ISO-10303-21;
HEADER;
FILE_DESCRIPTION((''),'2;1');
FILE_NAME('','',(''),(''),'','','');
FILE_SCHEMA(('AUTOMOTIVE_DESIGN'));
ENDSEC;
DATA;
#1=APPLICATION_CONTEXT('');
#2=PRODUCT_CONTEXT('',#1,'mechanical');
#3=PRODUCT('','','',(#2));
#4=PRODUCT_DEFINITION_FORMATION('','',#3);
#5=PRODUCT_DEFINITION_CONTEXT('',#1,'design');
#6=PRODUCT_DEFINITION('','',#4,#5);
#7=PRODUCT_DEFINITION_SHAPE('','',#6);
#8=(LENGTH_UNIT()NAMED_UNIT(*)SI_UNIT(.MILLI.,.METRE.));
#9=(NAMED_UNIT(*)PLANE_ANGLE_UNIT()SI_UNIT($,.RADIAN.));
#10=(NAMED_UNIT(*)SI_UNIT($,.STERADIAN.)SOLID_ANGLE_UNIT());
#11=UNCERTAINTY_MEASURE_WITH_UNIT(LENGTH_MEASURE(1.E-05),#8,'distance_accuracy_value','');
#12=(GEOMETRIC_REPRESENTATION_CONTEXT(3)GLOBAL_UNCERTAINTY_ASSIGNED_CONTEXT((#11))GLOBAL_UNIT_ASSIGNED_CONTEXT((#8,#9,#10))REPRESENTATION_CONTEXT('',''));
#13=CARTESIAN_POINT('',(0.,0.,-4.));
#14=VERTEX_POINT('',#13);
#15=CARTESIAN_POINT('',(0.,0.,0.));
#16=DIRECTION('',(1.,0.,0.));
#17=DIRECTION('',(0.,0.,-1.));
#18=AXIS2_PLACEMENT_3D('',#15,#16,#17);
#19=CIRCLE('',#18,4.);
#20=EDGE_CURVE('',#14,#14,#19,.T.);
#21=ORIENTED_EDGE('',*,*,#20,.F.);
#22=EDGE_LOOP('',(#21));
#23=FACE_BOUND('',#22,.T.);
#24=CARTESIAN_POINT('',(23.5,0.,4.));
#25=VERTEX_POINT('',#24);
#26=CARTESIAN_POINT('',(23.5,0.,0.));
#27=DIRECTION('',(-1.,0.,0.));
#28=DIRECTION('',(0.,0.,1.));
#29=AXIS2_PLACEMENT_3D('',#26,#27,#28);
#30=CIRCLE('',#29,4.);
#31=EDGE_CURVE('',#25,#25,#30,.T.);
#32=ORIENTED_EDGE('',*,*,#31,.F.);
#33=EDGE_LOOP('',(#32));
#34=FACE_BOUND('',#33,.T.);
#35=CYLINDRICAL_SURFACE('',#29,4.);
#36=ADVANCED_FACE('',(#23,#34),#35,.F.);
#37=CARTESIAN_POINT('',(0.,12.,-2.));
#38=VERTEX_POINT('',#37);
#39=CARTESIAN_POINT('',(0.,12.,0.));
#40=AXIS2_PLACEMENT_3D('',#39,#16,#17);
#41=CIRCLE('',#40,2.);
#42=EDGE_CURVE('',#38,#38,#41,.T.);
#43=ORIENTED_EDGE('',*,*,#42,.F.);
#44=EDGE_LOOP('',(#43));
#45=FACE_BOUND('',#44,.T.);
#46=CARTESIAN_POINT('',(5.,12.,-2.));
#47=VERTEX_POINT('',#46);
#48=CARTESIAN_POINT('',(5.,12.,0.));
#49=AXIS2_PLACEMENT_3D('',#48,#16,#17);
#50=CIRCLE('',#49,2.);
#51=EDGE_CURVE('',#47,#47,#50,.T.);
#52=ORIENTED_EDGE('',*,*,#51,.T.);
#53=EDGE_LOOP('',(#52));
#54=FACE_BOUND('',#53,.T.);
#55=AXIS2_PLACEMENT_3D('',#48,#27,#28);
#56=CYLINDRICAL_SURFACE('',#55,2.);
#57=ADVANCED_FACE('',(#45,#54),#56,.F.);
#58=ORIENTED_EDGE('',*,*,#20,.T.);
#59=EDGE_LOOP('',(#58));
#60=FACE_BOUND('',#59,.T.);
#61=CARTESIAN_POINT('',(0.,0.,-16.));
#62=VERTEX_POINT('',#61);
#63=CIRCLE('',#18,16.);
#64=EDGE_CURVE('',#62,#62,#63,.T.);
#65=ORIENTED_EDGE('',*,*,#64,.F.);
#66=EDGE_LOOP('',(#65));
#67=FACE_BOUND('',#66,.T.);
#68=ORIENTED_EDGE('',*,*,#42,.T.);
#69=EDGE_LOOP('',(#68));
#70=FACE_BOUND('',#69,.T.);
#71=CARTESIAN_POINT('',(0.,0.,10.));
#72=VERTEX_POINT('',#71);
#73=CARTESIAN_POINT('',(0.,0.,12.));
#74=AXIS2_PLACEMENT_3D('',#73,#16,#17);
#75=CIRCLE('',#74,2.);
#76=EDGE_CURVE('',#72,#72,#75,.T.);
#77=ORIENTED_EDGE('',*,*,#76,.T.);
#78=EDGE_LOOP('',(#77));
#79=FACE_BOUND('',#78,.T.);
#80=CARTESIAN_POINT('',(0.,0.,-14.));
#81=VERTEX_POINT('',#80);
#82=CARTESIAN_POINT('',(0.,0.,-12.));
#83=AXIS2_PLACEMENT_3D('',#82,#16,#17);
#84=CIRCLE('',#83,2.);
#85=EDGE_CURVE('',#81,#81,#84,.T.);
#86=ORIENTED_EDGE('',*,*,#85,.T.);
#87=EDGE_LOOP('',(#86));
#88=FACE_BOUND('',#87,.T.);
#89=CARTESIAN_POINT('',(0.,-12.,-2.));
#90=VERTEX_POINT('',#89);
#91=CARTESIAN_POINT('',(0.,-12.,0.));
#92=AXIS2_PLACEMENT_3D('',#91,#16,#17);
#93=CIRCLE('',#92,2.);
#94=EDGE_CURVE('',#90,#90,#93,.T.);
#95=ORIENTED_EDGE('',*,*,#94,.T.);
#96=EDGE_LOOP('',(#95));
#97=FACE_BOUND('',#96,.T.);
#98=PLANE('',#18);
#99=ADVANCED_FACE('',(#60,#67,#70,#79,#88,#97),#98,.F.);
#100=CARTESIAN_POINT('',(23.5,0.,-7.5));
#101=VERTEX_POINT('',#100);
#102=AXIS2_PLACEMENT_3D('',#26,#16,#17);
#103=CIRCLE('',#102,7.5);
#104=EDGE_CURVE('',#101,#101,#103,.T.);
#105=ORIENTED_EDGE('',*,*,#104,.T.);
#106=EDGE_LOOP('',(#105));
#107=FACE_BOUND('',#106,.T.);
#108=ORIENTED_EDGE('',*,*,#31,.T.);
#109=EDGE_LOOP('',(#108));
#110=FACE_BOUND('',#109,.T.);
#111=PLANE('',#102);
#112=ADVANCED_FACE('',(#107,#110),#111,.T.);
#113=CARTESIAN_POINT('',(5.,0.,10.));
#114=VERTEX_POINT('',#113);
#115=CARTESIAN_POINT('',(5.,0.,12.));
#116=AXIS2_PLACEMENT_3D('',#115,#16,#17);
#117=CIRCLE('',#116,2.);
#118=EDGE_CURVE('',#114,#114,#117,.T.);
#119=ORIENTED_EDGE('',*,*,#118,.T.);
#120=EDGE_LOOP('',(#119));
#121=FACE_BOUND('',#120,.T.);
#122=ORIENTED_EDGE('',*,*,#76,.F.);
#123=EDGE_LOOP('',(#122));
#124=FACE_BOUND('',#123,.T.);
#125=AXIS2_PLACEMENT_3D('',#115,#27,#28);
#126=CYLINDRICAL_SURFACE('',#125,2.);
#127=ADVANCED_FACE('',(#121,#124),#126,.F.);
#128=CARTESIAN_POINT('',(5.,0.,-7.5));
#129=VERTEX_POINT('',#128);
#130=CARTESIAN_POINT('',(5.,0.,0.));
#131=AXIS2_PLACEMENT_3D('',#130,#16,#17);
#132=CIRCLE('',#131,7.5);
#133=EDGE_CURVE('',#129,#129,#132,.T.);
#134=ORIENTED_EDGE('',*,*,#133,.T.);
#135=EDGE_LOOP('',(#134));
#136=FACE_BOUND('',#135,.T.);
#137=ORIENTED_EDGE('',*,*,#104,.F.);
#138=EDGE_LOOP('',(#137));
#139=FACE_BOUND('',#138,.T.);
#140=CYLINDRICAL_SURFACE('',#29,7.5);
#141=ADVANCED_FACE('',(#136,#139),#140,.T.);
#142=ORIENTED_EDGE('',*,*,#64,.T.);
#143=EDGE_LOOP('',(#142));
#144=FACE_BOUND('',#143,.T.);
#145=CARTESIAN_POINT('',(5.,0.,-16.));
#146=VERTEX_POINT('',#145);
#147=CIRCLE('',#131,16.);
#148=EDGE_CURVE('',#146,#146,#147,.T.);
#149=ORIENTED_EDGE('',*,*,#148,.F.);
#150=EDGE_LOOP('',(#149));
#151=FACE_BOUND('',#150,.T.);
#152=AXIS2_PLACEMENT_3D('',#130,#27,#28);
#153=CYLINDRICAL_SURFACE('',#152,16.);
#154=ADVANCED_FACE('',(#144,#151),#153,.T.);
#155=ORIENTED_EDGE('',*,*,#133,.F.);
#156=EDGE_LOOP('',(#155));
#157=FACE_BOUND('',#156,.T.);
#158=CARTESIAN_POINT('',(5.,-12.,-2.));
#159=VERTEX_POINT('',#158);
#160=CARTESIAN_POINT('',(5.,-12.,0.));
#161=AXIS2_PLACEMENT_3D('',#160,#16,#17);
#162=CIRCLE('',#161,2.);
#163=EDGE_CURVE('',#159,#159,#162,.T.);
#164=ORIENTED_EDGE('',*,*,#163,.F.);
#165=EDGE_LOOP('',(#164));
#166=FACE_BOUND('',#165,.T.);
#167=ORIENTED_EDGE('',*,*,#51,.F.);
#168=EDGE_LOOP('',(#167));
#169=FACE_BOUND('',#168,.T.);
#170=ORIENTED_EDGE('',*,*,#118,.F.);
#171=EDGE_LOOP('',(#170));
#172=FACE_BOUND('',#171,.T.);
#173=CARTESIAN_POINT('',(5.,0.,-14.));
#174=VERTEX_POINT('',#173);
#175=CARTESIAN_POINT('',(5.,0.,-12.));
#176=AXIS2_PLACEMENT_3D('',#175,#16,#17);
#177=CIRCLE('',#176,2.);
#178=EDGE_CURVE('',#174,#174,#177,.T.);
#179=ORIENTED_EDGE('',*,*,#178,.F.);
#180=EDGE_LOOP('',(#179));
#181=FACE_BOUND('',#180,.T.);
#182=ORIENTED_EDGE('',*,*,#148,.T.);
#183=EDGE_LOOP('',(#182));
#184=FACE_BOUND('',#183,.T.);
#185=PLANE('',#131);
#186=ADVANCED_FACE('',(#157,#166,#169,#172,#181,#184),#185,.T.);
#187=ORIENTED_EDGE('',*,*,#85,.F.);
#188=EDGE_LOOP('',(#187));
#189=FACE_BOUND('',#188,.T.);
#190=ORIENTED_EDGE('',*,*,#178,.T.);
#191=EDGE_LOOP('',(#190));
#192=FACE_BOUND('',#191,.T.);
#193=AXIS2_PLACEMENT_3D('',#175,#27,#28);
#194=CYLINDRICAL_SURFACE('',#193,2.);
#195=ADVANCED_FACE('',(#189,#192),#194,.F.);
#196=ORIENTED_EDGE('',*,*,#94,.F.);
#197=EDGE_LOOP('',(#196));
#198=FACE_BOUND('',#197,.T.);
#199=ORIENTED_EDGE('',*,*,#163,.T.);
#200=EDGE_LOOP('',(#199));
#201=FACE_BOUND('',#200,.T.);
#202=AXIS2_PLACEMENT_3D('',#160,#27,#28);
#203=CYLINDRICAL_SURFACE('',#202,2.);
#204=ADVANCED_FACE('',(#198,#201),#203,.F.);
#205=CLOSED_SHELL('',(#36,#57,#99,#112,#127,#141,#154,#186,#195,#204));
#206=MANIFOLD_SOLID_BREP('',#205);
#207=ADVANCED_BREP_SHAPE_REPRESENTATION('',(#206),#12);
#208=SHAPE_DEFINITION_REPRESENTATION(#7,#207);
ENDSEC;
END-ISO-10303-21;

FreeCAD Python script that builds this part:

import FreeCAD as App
import Part
import Sketcher

V = App.Vector
Q = App.Units.Quantity

doc = App.newDocument("Part")
body = doc.addObject("PartDesign::Body", "Body")

# Sketch on YZ plane
sketch1 = body.newObject("Sketcher::SketchObject", "Sketch")
sketch1.AttachmentSupport = (doc.getObject("YZ_Plane"), [""])
sketch1.MapMode = "FlatFace"
sketch1.addGeometry(Part.Circle(V(0, 0, 0), V(0, 0, 1), 16), False)
sketch1.addGeometry(Part.Circle(V(-12, 0, 0), V(0, 0, 1), 2), False)
sketch1.addGeometry(Part.Circle(V(0, 12, 0), V(0, 0, 1), 2), False)
sketch1.addGeometry(Part.Circle(V(0, -12, 0), V(0, 0, 1), 2), False)
sketch1.addGeometry(Part.Circle(V(12, 0, 0), V(0, 0, 1), 2), False)
sketch1.addConstraint(Sketcher.Constraint("Coincident", 0, 3, -1, 1))
sketch1.addConstraint(Sketcher.Constraint("Equal", 1, 2))
sketch1.addConstraint(Sketcher.Constraint("Equal", 2, 3))
sketch1.addConstraint(Sketcher.Constraint("Equal", 3, 4))
sketch1.addConstraint(Sketcher.Constraint("Symmetric", 2, 3, 3, 3, -1, 1))
sketch1.addConstraint(Sketcher.Constraint("Symmetric", 1, 3, 4, 3, -1, 1))
sketch1.addConstraint(Sketcher.Constraint("PointOnObject", 1, 3, -1))
sketch1.addConstraint(Sketcher.Constraint("PointOnObject", 2, 3, -2))
sketch1.addConstraint(Sketcher.Constraint("Diameter", 0, Q("32 mm")))
sketch1.addConstraint(Sketcher.Constraint("Diameter", 1, Q("4 mm")))
sketch1.addConstraint(Sketcher.Constraint("DistanceX", 1, 3, -1, 1, Q("12 mm")))
sketch1.addConstraint(Sketcher.Constraint("DistanceY", -1, 1, 2, 3, Q("12 mm")))
pad1 = body.newObject("PartDesign::Pad", "Pad")
pad1.Profile = sketch1
pad1.Length = 5

# Sketch on YZ plane
sketch2 = body.newObject("Sketcher::SketchObject", "Sketch001")
sketch2.AttachmentSupport = (doc.getObject("YZ_Plane"), [""])
sketch2.MapMode = "FlatFace"
sketch2.AttachmentOffset = App.Placement(V(0, 0, 5), App.Rotation())
sketch2.addGeometry(Part.Circle(V(0, 0, 0), V(0, 0, 1), 7.5), False)
sketch2.addConstraint(Sketcher.Constraint("Coincident", 0, 3, -1, 1))
sketch2.addConstraint(Sketcher.Constraint("Diameter", 0, Q("15 mm")))
pad2 = body.newObject("PartDesign::Pad", "Pad001")
pad2.Profile = sketch2
pad2.Length = 18.5

# Sketch on YZ plane
sketch3 = body.newObject("Sketcher::SketchObject", "Sketch002")
sketch3.AttachmentSupport = (doc.getObject("YZ_Plane"), [""])
sketch3.MapMode = "FlatFace"
sketch3.addGeometry(Part.Circle(V(0, 0, 0), V(0, 0, 1), 4), False)
sketch3.addConstraint(Sketcher.Constraint("Coincident", 0, 3, -1, 1))
sketch3.addConstraint(Sketcher.Constraint("Diameter", 0, Q("8 mm")))
pocket1 = body.newObject("PartDesign::Pocket", "Pocket")
pocket1.Profile = sketch3
pocket1.Type = "ThroughAll"
pocket1.Midplane = True

doc.recompute()
